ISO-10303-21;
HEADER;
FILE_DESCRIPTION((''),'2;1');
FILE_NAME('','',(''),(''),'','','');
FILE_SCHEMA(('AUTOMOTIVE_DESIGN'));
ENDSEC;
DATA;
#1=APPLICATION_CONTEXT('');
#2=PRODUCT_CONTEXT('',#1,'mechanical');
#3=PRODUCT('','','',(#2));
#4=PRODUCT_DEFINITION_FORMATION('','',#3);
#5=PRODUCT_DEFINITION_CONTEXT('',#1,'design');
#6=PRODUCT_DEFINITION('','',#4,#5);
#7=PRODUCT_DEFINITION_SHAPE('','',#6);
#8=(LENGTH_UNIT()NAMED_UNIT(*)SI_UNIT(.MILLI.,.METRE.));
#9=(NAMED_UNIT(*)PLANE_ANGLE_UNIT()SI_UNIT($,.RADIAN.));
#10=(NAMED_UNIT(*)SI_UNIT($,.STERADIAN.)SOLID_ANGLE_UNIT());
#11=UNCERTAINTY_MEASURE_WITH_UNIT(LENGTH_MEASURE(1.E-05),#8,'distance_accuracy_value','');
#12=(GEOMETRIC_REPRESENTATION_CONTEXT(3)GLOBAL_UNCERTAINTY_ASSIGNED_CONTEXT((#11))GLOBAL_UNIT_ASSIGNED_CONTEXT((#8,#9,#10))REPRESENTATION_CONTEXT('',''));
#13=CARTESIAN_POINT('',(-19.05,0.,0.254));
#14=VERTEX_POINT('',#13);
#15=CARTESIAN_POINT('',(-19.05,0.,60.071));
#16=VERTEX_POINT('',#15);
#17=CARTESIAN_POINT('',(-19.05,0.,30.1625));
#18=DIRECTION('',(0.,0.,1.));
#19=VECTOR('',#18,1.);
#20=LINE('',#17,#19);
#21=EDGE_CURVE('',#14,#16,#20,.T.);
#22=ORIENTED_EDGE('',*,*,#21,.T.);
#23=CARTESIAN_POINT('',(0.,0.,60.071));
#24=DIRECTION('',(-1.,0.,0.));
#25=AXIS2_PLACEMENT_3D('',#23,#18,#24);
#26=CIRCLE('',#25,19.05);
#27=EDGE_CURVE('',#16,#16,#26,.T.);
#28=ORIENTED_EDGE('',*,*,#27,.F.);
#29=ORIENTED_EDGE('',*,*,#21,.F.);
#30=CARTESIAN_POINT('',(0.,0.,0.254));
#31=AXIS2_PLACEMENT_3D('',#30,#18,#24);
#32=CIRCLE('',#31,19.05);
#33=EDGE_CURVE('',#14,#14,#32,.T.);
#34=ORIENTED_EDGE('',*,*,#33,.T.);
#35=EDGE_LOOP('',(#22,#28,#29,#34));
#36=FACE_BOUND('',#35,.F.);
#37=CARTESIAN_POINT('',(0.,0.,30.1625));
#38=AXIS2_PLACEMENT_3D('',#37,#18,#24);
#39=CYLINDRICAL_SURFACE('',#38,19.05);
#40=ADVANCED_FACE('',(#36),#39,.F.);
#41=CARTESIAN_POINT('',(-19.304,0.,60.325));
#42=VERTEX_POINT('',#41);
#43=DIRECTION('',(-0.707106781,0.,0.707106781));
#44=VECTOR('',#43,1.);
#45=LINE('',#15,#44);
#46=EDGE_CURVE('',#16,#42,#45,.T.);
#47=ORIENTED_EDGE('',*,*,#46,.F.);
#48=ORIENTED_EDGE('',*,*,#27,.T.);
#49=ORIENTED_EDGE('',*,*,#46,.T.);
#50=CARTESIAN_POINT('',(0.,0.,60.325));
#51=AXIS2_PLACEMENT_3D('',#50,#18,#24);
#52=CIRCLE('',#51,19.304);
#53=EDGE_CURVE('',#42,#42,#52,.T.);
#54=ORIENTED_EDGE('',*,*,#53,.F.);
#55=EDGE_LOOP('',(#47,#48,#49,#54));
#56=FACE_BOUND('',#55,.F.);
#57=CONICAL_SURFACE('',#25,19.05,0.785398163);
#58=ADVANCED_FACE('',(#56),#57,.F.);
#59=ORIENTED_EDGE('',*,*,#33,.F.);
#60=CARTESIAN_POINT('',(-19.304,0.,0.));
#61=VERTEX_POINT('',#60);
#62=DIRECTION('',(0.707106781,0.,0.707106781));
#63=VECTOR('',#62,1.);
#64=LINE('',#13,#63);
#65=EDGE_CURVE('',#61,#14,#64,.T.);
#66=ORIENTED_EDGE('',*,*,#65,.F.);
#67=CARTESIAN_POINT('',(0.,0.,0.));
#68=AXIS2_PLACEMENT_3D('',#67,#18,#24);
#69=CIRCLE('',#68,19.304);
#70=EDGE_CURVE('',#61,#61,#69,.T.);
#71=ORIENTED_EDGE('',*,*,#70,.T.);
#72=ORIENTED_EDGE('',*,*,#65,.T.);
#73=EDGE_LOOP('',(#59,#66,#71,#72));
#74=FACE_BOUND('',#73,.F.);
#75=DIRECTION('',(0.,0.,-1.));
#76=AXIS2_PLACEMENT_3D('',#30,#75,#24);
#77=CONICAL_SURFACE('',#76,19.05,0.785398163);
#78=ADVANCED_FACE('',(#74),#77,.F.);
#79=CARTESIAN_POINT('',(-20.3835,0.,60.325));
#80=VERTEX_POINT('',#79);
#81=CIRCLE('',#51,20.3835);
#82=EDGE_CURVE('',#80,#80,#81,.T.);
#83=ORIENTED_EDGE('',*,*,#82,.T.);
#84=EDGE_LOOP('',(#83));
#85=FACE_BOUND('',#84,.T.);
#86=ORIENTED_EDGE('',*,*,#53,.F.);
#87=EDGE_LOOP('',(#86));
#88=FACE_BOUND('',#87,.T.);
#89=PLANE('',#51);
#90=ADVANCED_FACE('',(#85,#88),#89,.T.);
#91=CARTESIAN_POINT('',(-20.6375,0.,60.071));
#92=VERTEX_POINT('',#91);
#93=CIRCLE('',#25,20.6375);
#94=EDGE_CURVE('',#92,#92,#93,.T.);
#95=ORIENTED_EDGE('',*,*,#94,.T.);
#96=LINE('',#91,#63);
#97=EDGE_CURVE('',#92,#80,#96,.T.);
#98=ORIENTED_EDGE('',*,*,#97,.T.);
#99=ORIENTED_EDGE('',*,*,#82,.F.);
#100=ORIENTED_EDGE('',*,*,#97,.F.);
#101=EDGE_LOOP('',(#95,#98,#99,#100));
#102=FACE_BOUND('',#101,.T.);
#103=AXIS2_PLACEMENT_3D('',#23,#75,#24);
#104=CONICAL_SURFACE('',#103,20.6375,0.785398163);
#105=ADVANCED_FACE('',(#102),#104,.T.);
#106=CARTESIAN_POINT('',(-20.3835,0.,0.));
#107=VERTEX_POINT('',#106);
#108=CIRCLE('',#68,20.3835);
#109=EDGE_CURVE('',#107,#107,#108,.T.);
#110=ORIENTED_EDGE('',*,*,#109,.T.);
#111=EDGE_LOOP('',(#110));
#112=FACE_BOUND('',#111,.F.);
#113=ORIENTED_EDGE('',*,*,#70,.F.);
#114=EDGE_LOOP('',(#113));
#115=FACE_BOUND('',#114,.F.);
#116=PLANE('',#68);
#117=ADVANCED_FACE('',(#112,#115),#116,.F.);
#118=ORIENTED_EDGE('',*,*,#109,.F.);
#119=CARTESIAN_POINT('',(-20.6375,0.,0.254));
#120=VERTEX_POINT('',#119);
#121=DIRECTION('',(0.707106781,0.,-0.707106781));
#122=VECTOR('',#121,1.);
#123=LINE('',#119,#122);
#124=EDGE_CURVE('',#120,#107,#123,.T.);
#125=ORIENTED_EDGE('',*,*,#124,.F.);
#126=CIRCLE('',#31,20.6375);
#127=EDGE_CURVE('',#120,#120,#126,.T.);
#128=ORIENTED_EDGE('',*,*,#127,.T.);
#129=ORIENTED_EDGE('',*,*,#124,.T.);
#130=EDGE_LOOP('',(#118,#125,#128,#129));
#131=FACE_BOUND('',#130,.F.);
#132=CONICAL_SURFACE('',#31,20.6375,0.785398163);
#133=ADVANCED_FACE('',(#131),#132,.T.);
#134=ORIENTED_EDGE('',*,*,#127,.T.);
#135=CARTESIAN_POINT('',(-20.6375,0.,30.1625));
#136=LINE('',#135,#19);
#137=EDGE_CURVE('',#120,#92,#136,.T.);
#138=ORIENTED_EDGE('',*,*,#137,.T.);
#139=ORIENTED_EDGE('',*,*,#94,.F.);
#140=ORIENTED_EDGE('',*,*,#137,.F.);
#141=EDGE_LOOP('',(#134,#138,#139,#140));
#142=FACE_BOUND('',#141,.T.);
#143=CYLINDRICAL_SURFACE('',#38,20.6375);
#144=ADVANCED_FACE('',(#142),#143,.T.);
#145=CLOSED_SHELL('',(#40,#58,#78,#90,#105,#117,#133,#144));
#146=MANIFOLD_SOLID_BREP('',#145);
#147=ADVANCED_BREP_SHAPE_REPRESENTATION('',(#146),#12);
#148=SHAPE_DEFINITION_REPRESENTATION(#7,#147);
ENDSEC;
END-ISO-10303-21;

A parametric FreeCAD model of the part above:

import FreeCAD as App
import Part
import Sketcher
from FreeCAD import Vector
Q = App.Units.Quantity


def edges_at(feature, points):
    """Names of the edges that pass closest to the given points."""
    edges = feature.Shape.Edges
    near = lambda p: min(range(len(edges)), key=lambda i: edges[i].distToShape(Part.Vertex(*p))[0])
    return sorted({f"Edge{near(p) + 1}" for p in points})


def add_polygon(sketch, points):
    """Adds a closed chain of lines whose ends are joined by coincident constraints."""
    first, n = sketch.GeometryCount, len(points)
    for a, b in zip(points, points[1:] + points[:1]):
        sketch.addGeometry(Part.LineSegment(App.Vector(*a, 0), App.Vector(*b, 0)), False)
    for i in range(n):
        sketch.addConstraint(Sketcher.Constraint("Coincident", first + i, 2, first + (i + 1) % n, 1))

doc = App.newDocument("Part")
body = doc.addObject("PartDesign::Body", "Body")

# Sketch on XZ plane
sketch1 = doc.addObject("Sketcher::SketchObject", "Sketch")
body.addObject(sketch1)
sketch1.AttachmentSupport = (doc.XZ_Plane, [""])
sketch1.MapMode = "FlatFace"
add_polygon(sketch1, [(-20.6, 60.3), (-20.6, 0), (-19.1, 0), (-19.1, 60.3)])  # lines 0-3
sketch1.addConstraint([
    Sketcher.Constraint("Vertical", 0),
    Sketcher.Constraint("Horizontal", 1),
    Sketcher.Constraint("Vertical", 2),
    Sketcher.Constraint("Horizontal", 3),
    Sketcher.Constraint("PointOnObject", 0, 2, -1),
    Sketcher.Constraint("DistanceX", 1, 1, 1, 2, Q("0.0625 in")),
    Sketcher.Constraint("DistanceY", 0, 2, 0, 1, Q("2.375 in")),
    Sketcher.Constraint("DistanceX", 1, 2, -1, 1, Q("0.75 in")),
])
revolution = doc.addObject("PartDesign::Revolution", "Revolution")
body.addObject(revolution)
revolution.Profile = sketch1
revolution.ReferenceAxis = (sketch1, ["V_Axis"])
revolution.Angle = 360
doc.recompute()

chamfer = doc.addObject("PartDesign::Chamfer", "Chamfer")
body.addObject(chamfer)
chamfer.Base = (revolution, edges_at(revolution, [
    (19.05, 0, 60.325),
    (20.637, 0, 60.325),
    (19.05, 0, 0),
    (20.637, 0, 0),
]))
chamfer.Size = Q("0.01 in")

doc.recompute()
